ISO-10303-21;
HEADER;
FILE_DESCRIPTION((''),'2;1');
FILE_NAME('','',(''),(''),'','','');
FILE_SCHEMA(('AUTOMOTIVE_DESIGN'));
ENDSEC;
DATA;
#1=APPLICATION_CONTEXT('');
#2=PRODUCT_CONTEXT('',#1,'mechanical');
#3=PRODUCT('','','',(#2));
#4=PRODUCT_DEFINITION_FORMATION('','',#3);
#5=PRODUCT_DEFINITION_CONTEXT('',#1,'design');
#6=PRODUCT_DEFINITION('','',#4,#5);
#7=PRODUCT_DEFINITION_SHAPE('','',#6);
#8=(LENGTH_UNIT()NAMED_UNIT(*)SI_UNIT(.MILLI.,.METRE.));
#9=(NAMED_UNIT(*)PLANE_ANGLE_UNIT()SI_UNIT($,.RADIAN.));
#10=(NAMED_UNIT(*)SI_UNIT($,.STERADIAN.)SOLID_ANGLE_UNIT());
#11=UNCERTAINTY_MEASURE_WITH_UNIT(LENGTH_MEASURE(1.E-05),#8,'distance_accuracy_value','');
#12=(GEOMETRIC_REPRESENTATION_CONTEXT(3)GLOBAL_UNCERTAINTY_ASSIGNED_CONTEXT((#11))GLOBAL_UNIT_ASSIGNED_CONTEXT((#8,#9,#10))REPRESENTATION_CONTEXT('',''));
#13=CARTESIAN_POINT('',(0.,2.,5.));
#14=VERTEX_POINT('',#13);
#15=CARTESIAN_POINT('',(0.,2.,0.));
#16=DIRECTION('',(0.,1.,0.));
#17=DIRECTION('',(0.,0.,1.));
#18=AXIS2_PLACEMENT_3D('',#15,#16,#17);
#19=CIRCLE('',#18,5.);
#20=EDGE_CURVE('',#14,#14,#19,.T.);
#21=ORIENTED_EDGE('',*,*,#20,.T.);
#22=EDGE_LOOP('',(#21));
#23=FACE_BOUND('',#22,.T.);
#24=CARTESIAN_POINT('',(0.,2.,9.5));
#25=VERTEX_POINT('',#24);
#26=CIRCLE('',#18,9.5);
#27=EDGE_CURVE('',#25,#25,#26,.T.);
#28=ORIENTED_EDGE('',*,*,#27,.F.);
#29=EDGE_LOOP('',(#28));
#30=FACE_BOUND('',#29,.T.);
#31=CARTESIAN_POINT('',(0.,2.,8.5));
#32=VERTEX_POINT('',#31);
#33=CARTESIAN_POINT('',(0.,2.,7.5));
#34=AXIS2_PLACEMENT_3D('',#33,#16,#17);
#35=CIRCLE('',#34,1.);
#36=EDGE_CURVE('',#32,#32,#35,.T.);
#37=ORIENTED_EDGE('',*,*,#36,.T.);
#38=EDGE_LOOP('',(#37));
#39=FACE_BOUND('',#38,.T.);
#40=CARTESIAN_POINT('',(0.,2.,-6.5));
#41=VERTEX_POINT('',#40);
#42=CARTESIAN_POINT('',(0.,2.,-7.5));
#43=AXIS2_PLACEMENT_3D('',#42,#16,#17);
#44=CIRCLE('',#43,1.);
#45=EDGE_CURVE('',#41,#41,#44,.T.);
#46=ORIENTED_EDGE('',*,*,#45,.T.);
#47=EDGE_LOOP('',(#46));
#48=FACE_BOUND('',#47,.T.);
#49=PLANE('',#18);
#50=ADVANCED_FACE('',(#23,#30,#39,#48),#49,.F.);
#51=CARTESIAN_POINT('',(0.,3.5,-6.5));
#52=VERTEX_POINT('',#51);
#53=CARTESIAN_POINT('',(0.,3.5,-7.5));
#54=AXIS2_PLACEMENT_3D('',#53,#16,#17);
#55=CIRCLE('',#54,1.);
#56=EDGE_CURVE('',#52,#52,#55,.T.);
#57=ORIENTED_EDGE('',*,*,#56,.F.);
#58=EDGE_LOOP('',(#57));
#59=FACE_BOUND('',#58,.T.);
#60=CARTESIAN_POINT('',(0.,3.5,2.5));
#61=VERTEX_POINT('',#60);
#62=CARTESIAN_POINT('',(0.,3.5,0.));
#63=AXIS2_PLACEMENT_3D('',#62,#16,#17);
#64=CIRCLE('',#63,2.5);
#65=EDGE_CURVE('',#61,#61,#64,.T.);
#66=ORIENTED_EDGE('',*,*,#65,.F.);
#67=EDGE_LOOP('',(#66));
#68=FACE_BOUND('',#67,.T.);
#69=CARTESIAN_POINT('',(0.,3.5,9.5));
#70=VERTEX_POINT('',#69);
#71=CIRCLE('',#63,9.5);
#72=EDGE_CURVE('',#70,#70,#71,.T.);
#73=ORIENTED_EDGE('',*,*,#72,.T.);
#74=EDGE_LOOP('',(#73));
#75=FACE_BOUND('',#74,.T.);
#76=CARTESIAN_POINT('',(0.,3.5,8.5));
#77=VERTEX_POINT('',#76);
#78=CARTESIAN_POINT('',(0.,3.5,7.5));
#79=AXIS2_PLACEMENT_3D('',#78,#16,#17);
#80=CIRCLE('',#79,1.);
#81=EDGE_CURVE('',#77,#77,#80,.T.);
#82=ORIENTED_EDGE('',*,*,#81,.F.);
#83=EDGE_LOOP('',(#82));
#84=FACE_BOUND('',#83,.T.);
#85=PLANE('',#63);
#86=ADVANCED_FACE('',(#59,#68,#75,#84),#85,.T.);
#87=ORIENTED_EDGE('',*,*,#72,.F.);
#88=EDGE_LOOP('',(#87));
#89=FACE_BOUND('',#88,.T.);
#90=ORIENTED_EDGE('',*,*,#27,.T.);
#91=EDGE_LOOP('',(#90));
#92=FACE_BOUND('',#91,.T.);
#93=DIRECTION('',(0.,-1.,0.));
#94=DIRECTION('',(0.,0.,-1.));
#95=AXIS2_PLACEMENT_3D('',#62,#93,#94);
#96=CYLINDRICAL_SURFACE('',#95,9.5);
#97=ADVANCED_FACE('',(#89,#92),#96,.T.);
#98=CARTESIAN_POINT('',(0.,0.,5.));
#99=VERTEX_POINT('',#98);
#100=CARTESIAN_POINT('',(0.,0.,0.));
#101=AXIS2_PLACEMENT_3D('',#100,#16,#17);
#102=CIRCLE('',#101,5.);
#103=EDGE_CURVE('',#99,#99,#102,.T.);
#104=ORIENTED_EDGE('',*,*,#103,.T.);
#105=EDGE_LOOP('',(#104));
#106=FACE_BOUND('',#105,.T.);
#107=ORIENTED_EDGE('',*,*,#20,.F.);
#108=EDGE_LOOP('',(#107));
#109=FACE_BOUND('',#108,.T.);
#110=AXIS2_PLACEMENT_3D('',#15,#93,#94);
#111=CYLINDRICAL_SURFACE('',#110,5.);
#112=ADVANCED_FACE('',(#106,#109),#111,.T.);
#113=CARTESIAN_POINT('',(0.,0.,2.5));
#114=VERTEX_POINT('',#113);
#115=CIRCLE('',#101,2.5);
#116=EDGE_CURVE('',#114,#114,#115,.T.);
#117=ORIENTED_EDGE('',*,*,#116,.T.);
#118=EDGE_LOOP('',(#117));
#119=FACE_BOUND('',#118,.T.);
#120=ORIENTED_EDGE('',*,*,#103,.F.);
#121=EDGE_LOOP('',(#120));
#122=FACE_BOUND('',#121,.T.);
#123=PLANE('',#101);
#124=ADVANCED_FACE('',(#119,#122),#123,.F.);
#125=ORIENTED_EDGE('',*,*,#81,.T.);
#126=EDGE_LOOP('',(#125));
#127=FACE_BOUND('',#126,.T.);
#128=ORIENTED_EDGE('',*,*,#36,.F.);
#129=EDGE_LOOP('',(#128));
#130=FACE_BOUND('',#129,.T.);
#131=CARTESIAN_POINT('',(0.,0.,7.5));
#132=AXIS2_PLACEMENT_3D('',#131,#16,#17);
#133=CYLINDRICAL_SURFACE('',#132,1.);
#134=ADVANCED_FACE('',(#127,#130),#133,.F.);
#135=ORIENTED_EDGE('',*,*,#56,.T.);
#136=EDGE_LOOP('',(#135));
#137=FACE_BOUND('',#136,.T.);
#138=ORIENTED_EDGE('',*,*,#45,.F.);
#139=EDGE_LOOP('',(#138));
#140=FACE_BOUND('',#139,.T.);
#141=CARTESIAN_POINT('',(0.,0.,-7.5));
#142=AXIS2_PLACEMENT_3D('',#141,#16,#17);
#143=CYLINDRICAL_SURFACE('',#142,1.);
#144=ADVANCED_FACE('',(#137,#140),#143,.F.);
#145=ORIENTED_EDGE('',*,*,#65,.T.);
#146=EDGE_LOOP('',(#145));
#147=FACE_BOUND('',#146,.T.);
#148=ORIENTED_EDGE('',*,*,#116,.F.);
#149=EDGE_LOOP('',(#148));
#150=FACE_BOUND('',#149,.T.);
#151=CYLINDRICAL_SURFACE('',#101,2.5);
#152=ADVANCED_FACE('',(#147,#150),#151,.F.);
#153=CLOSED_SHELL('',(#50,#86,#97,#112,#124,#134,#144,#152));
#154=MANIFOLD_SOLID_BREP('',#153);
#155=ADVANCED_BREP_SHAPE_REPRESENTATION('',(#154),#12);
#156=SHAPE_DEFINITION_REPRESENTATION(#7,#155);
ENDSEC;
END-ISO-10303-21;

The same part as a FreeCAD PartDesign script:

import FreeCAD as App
import Part
import Sketcher
Q = App.Units.Quantity

doc = App.newDocument("Part")
body = doc.addObject("PartDesign::Body", "Body")

sketch1 = doc.addObject("Sketcher::SketchObject", "Sketch")
body.addObject(sketch1)
sketch1.AttachmentSupport = (doc.XZ_Plane, [""])
sketch1.MapMode = "FlatFace"
sketch1.addGeometry(Part.Circle(App.Vector(0, 0, 0), App.Vector(0, 0, 1), 5), False)
sketch1.addConstraint([
    Sketcher.Constraint("Coincident", 0, 3, -1, 1),
    Sketcher.Constraint("Diameter", 0, Q("10 mm")),
])
pad1 = doc.addObject("PartDesign::Pad", "Pad")
body.addObject(pad1)
pad1.Profile = sketch1
pad1.Length = 2
pad1.Reversed = True

sketch2 = doc.addObject("Sketcher::SketchObject", "Sketch001")
body.addObject(sketch2)
sketch2.AttachmentSupport = (doc.XZ_Plane, [""])
sketch2.MapMode = "FlatFace"
sketch2.AttachmentOffset = App.Placement(App.Vector(0, 0, -2), App.Rotation())
sketch2.addGeometry(Part.Circle(App.Vector(0, 0, 0), App.Vector(0, 0, 1), 10), False)
sketch2.addConstraint([
    Sketcher.Constraint("Coincident", 0, 3, -1, 1),
    Sketcher.Constraint("Diameter", 0, Q("19 mm")),
])
pad2 = doc.addObject("PartDesign::Pad", "Pad001")
body.addObject(pad2)
pad2.Profile = sketch2
pad2.Length = 1.5
pad2.Reversed = True

sketch3 = doc.addObject("Sketcher::SketchObject", "Sketch002")
body.addObject(sketch3)
sketch3.AttachmentSupport = (doc.XZ_Plane, [""])
sketch3.MapMode = "FlatFace"
sketch3.AttachmentOffset = App.Placement(App.Vector(0, 0, -3.5), App.Rotation())
sketch3.addGeometry([
    Part.Circle(App.Vector(0, 0, 0), App.Vector(0, 0, 1), 2.5),
    Part.Circle(App.Vector(0, -7.5, 0), App.Vector(0, 0, 1), 1),
    Part.Circle(App.Vector(0, 7.5, 0), App.Vector(0, 0, 1), 1),
], False)
sketch3.addConstraint([
    Sketcher.Constraint("Coincident", 0, 3, -1, 1),
    Sketcher.Constraint("Equal", 1, 2),
    Sketcher.Constraint("Symmetric", 1, 3, 2, 3, -1, 1),
    Sketcher.Constraint("PointOnObject", 1, 3, -2),
    Sketcher.Constraint("Diameter", 0, Q("5 mm")),
    Sketcher.Constraint("Diameter", 1, Q("2 mm")),
    Sketcher.Constraint("DistanceY", 1, 3, 2, 3, Q("15 mm")),
])
pocket1 = doc.addObject("PartDesign::Pocket", "Pocket")
body.addObject(pocket1)
pocket1.Profile = sketch3
pocket1.Type = "ThroughAll"
pocket1.Reversed = True

doc.recompute()
